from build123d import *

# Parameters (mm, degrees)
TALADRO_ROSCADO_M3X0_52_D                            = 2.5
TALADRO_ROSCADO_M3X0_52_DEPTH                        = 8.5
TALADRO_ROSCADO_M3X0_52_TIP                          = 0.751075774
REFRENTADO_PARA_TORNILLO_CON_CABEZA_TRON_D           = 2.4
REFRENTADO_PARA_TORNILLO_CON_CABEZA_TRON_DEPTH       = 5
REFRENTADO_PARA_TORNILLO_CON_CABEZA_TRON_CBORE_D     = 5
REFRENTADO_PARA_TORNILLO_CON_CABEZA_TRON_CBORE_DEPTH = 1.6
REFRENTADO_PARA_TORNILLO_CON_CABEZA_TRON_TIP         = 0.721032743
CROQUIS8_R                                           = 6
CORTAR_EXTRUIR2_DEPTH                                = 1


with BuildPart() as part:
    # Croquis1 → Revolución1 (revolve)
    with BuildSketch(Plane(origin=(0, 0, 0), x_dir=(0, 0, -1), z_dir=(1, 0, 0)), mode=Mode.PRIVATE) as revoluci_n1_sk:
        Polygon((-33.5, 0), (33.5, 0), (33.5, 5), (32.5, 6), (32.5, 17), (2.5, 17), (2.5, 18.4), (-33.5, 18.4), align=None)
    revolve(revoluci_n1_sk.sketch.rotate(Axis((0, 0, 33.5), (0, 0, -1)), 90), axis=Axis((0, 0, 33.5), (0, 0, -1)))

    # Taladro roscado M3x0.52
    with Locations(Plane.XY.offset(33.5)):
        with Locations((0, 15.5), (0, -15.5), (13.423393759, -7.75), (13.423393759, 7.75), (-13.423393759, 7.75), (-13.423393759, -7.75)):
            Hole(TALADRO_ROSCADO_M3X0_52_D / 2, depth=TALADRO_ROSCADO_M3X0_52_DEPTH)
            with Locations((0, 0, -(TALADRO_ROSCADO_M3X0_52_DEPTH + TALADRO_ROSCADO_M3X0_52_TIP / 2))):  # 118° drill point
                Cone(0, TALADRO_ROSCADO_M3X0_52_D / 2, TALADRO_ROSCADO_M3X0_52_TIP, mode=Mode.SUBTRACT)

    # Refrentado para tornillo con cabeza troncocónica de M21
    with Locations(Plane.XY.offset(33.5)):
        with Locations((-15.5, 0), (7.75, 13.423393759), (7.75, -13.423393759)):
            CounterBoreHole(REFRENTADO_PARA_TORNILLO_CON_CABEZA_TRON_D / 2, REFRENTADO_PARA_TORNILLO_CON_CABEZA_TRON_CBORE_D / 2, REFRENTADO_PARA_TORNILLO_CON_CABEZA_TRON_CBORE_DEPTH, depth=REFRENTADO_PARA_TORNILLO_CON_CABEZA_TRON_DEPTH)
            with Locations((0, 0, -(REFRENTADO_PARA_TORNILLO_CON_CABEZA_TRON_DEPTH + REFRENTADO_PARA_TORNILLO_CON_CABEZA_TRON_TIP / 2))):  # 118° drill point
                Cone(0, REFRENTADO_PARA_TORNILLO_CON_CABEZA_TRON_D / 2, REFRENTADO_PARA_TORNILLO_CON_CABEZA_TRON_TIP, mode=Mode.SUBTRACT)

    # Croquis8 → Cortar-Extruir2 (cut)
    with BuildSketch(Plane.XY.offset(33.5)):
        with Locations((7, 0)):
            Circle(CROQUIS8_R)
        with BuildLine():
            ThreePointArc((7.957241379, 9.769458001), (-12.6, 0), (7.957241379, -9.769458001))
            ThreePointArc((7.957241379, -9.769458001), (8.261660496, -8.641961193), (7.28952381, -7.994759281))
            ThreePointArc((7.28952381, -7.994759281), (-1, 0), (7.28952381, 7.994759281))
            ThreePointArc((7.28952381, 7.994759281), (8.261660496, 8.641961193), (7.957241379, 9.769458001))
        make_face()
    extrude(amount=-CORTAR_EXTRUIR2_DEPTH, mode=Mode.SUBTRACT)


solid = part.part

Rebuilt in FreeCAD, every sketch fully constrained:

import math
import FreeCAD as App
import Part
import Sketcher
from FreeCAD import Vector
Q = App.Units.Quantity


def add_polygon(sketch, points):
    """Adds a closed chain of lines whose ends are joined by coincident constraints."""
    first, n = sketch.GeometryCount, len(points)
    for a, b in zip(points, points[1:] + points[:1]):
        sketch.addGeometry(Part.LineSegment(App.Vector(*a, 0), App.Vector(*b, 0)), False)
    for i in range(n):
        sketch.addConstraint(Sketcher.Constraint("Coincident", first + i, 2, first + (i + 1) % n, 1))

doc = App.newDocument("Part")
body = doc.addObject("PartDesign::Body", "Body")

# Sketch on YZ plane
sketch1 = doc.addObject("Sketcher::SketchObject", "Sketch")
body.addObject(sketch1)
sketch1.AttachmentSupport = (doc.YZ_Plane, [""])
sketch1.MapMode = "FlatFace"
add_polygon(sketch1, [(0, 33.5), (0, -33.5), (5, -33.5), (6, -32.5), (17, -32.5), (17, -2.5), (18.4, -2.5), (18.4, 33.5)])  # lines 0-7
sketch1.addConstraint([
    Sketcher.Constraint("Vertical", 0),
    Sketcher.Constraint("Horizontal", 1),
    Sketcher.Constraint("Horizontal", 3),
    Sketcher.Constraint("Vertical", 4),
    Sketcher.Constraint("Horizontal", 5),
    Sketcher.Constraint("Vertical", 6),
    Sketcher.Constraint("Horizontal", 7),
    Sketcher.Constraint("Symmetric", 0, 2, 7, 2, -1, 1),
    Sketcher.Constraint("DistanceX", 1, 1, 1, 2, Q("5 mm")),
    Sketcher.Constraint("DistanceX", 3, 1, 3, 2, Q("11 mm")),
    Sketcher.Constraint("DistanceY", 0, 2, 0, 1, Q("67 mm")),
    Sketcher.Constraint("DistanceY", 4, 1, 4, 2, Q("30 mm")),
    Sketcher.Constraint("DistanceY", 6, 1, 6, 2, Q("36 mm")),
    Sketcher.Constraint("Angle", 2, Q("45 deg")),
    Sketcher.Constraint("DistanceX", 5, 1, 5, 2, Q("1.4 mm")),
])
revolution = doc.addObject("PartDesign::Revolution", "Revolution")
body.addObject(revolution)
revolution.Profile = sketch1
revolution.ReferenceAxis = (sketch1, ["V_Axis"])
revolution.Angle = 360

# Sketch on XY plane
sketch2 = doc.addObject("Sketcher::SketchObject", "Sketch001")
body.addObject(sketch2)
sketch2.AttachmentSupport = (doc.XY_Plane, [""])
sketch2.MapMode = "FlatFace"
sketch2.AttachmentOffset = App.Placement(Vector(0, 0, 33.5), App.Rotation())
sketch2.addGeometry([
    Part.Circle(Vector(0, 15.5, 0), Vector(0, 0, 1), 1.25),  # 0
    Part.Circle(Vector(0, -15.5, 0), Vector(0, 0, 1), 1.25),  # 1
    Part.Circle(Vector(13.423394, -7.75, 0), Vector(0, 0, 1), 1.25),  # 2
    Part.Circle(Vector(13.423394, 7.75, 0), Vector(0, 0, 1), 1.25),  # 3
    Part.Circle(Vector(-13.423394, 7.75, 0), Vector(0, 0, 1), 1.25),  # 4
    Part.Circle(Vector(-13.423394, -7.75, 0), Vector(0, 0, 1), 1.25),  # 5
], False)
sketch2.addConstraint([
    Sketcher.Constraint("Equal", 0, 1),
    Sketcher.Constraint("Equal", 1, 2),
    Sketcher.Constraint("Equal", 2, 3),
    Sketcher.Constraint("Equal", 3, 4),
    Sketcher.Constraint("Equal", 4, 5),
    Sketcher.Constraint("Symmetric", 0, 3, 1, 3, -1, 1),
    Sketcher.Constraint("Symmetric", 2, 3, 4, 3, -1, 1),
    Sketcher.Constraint("Symmetric", 3, 3, 5, 3, -1, 1),
    Sketcher.Constraint("Symmetric", 3, 3, 4, 3, -2),
    Sketcher.Constraint("PointOnObject", 0, 3, -2),
    Sketcher.Constraint("Diameter", 0, Q("2.5 mm")),
    Sketcher.Constraint("DistanceY", 1, 3, 0, 3, Q("31 mm")),
    Sketcher.Constraint("DistanceY", 2, 3, 3, 3, Q("15.5 mm")),
    Sketcher.Constraint("DistanceX", -1, 1, 2, 3, Q("13.423394 mm")),
])
doc.recompute()
hole = doc.addObject("PartDesign::Hole", "Hole")
body.addObject(hole)
hole.Profile = sketch2
hole.ThreadType = "None"
hole.Diameter = 2.5
hole.DepthType = "Dimension"
hole.Depth = 8.5
hole.DrillPoint = "Angled"
hole.DrillPointAngle = 118

# Sketch on XY plane
sketch3 = doc.addObject("Sketcher::SketchObject", "Sketch002")
body.addObject(sketch3)
sketch3.AttachmentSupport = (doc.XY_Plane, [""])
sketch3.MapMode = "FlatFace"
sketch3.AttachmentOffset = App.Placement(Vector(0, 0, 33.5), App.Rotation())
sketch3.addGeometry([
    Part.Circle(Vector(-15.5, 0, 0), Vector(0, 0, 1), 1.2),
    Part.Circle(Vector(7.75, 13.423394, 0), Vector(0, 0, 1), 1.2),
    Part.Circle(Vector(7.75, -13.423394, 0), Vector(0, 0, 1), 1.2),
], False)
sketch3.addConstraint([
    Sketcher.Constraint("Equal", 0, 1),
    Sketcher.Constraint("Equal", 1, 2),
    Sketcher.Constraint("Symmetric", 1, 3, 2, 3, -1),
    Sketcher.Constraint("PointOnObject", 0, 3, -1),
    Sketcher.Constraint("Diameter", 0, Q("2.4 mm")),
    Sketcher.Constraint("DistanceX", 0, 3, -1, 1, Q("15.5 mm")),
    Sketcher.Constraint("DistanceX", -1, 1, 1, 3, Q("7.75 mm")),
    Sketcher.Constraint("DistanceY", -1, 1, 1, 3, Q("13.423394 mm")),
])
doc.recompute()
hole2 = doc.addObject("PartDesign::Hole", "Hole001")
body.addObject(hole2)
hole2.Profile = sketch3
hole2.ThreadType = "None"
hole2.Diameter = 2.4
hole2.DepthType = "Dimension"
hole2.Depth = 5
hole2.DrillPoint = "Angled"
hole2.DrillPointAngle = 118
hole2.HoleCutType = "Counterbore"
hole2.HoleCutDiameter = 5
hole2.HoleCutDepth = 1.6

# Sketch on XY plane
sketch4 = doc.addObject("Sketcher::SketchObject", "Sketch003")
body.addObject(sketch4)
sketch4.AttachmentSupport = (doc.XY_Plane, [""])
sketch4.MapMode = "FlatFace"
sketch4.AttachmentOffset = App.Placement(Vector(0, 0, 33.5), App.Rotation())
sketch4.addGeometry([
    Part.Circle(Vector(7, 0, 0), Vector(0, 0, 1), 6),  # 0
    Part.ArcOfCircle(Part.Circle(Vector(0, 0, 0), Vector(0, 0, 1), 12.6), math.radians(50.837121), math.radians(309.162879)),  # 1
    Part.ArcOfCircle(Part.Circle(Vector(7.325714, -8.994104, 0), Vector(0, 0, 1), 1), math.radians(-50.837121), math.radians(92.074014)),  # 2
    Part.ArcOfCircle(Part.Circle(Vector(7, 0, 0), Vector(0, 0, 1), 8), math.radians(87.925986), math.radians(272.074014)),  # 3
    Part.ArcOfCircle(Part.Circle(Vector(7.325714, 8.994104, 0), Vector(0, 0, 1), 1), math.radians(-92.074014), math.radians(50.837121)),  # 4
], False)
sketch4.addConstraint([
    Sketcher.Constraint("Tangent", 1, 2, 2, 1),
    Sketcher.Constraint("Tangent", 2, 2, 3, 2),
    Sketcher.Constraint("Tangent", 3, 1, 4, 1),
    Sketcher.Constraint("Tangent", 4, 2, 1, 1),
    Sketcher.Constraint("Coincident", 1, 3, -1, 1),
    Sketcher.Constraint("Coincident", 3, 3, 0, 3),
    Sketcher.Constraint("Equal", 2, 4),
    Sketcher.Constraint("PointOnObject", 0, 3, -1),
    Sketcher.Constraint("Diameter", 0, Q("12 mm")),
    Sketcher.Constraint("Radius", 2, Q("1 mm")),
    Sketcher.Constraint("Radius", 3, Q("8 mm")),
    Sketcher.Constraint("Radius", 1, Q("12.6 mm")),
    Sketcher.Constraint("DistanceX", -1, 1, 0, 3, Q("7 mm")),
])
pocket1 = doc.addObject("PartDesign::Pocket", "Pocket")
body.addObject(pocket1)
pocket1.Profile = sketch4
pocket1.Length = 1

doc.recompute()
